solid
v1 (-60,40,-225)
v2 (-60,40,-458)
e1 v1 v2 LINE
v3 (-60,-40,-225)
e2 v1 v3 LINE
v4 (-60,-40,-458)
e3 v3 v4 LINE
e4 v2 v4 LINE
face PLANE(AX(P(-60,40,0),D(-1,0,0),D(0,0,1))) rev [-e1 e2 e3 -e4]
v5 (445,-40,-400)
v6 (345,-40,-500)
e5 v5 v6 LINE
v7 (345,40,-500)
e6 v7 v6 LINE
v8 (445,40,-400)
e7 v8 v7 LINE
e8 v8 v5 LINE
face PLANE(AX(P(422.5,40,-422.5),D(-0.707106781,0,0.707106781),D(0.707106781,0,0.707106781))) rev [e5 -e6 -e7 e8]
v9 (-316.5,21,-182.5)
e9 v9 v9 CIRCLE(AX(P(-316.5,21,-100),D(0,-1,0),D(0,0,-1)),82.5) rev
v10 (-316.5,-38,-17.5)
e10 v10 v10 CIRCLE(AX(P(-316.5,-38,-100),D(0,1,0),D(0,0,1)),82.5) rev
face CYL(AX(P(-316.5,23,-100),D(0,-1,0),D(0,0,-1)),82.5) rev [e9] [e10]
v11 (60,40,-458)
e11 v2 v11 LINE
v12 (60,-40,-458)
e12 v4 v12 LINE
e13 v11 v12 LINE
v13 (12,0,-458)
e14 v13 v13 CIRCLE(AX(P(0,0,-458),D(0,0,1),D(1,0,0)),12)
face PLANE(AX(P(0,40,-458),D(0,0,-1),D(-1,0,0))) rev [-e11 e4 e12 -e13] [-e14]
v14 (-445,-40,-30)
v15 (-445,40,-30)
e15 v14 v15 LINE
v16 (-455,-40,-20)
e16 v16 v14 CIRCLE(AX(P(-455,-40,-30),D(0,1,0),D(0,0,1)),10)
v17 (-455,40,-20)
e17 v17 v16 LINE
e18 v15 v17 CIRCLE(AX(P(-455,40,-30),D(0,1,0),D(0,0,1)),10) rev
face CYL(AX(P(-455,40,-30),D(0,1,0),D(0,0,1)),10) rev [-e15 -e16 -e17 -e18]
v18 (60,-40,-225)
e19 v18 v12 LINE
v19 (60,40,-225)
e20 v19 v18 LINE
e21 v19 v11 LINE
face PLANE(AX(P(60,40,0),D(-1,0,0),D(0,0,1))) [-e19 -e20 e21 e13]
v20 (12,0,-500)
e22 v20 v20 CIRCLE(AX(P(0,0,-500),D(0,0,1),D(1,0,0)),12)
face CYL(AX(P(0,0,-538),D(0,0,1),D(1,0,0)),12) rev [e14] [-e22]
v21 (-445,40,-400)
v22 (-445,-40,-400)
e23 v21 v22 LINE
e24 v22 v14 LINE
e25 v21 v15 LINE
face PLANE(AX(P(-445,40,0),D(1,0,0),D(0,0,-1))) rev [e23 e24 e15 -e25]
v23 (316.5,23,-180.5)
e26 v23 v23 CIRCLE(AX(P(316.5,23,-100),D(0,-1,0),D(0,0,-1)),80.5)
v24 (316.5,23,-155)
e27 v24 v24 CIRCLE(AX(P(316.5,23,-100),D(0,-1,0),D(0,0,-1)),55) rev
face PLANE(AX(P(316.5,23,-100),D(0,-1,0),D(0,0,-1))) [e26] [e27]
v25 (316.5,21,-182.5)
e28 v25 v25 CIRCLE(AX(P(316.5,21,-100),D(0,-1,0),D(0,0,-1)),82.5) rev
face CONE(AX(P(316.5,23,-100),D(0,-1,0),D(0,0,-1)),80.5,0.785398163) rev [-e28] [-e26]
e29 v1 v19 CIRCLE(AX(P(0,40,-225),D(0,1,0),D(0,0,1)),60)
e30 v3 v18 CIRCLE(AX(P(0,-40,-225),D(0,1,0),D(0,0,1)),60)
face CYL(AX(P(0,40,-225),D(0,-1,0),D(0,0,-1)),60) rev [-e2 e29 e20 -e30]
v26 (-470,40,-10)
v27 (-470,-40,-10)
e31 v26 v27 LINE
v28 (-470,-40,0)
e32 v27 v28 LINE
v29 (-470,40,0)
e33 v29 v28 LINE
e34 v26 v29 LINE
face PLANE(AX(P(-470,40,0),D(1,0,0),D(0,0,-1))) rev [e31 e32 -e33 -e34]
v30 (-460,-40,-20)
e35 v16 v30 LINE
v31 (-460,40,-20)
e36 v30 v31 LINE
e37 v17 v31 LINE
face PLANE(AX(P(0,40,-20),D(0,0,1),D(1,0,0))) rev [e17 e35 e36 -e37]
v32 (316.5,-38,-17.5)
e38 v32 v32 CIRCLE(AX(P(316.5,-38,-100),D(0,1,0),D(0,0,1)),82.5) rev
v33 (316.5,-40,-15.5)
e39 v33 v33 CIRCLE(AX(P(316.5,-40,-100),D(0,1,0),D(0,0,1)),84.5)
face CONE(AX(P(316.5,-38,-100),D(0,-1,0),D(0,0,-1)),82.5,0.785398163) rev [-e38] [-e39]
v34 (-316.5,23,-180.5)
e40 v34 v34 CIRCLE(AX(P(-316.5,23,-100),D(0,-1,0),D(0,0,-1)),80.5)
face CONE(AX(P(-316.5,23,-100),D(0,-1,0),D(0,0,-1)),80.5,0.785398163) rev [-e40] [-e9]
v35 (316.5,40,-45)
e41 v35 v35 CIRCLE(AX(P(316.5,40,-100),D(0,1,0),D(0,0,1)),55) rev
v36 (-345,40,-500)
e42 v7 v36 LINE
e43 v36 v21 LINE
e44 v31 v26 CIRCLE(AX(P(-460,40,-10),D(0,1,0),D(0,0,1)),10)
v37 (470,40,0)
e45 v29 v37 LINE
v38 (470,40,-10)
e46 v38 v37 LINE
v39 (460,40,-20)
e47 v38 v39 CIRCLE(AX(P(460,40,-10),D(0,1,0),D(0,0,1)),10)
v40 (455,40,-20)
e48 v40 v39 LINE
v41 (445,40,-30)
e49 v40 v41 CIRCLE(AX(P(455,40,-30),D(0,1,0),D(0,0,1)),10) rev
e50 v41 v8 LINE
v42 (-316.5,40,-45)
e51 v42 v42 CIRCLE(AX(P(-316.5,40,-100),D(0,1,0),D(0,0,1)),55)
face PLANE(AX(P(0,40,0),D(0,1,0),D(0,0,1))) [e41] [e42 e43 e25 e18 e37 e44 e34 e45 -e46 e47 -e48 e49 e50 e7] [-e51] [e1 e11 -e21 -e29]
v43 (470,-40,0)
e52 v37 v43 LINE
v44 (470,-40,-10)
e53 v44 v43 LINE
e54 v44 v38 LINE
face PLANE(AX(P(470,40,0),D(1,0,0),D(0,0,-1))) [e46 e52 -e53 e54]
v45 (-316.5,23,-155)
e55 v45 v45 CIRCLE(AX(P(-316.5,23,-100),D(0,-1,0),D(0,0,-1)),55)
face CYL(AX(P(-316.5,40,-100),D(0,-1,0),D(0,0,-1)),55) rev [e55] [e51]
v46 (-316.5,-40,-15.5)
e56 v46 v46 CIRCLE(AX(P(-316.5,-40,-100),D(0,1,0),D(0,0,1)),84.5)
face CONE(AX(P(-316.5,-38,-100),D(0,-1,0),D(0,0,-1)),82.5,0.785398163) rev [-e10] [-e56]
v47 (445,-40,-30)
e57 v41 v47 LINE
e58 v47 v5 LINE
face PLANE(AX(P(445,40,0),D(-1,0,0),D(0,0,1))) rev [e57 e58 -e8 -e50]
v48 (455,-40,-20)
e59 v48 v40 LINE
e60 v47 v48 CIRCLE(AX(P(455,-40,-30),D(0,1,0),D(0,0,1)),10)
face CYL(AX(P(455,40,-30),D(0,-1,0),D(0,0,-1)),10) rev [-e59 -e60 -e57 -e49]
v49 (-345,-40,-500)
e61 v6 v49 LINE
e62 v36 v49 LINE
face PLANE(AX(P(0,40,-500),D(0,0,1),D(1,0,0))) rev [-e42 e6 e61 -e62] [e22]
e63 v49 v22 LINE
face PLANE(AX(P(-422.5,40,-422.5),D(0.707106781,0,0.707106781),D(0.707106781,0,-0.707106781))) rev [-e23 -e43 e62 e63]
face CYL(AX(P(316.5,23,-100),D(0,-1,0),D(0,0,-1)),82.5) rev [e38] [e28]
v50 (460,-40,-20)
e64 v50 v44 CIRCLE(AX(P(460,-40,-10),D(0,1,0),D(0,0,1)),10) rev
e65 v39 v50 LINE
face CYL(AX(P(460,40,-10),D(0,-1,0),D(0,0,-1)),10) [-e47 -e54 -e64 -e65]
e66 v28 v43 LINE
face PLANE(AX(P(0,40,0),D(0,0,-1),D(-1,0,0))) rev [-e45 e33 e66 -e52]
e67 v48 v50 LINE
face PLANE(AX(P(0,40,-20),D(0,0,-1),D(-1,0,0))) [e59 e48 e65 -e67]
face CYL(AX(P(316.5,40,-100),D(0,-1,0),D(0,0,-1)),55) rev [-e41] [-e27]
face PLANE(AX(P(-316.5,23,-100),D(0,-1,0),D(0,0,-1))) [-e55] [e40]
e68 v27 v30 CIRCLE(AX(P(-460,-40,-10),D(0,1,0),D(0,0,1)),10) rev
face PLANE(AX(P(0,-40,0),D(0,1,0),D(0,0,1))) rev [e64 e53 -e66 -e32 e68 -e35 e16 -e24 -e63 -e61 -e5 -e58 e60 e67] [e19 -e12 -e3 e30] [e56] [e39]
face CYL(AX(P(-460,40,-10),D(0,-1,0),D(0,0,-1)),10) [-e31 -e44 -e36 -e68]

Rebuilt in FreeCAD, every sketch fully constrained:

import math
import FreeCAD as App
import Part
import Sketcher

V = App.Vector
Q = App.Units.Quantity


def edges_at(feature, points):
    """Names of the edges that pass closest to the given points."""
    edges = feature.Shape.Edges
    near = lambda p: min(range(len(edges)), key=lambda i: edges[i].distToShape(Part.Vertex(*p))[0])
    return sorted({f"Edge{near(p) + 1}" for p in points})


def add_polygon(sketch, points):
    """Adds a closed chain of lines whose ends are joined by coincident constraints."""
    first, n = sketch.GeometryCount, len(points)
    for a, b in zip(points, points[1:] + points[:1]):
        sketch.addGeometry(Part.LineSegment(App.Vector(*a, 0), App.Vector(*b, 0)), False)
    for i in range(n):
        sketch.addConstraint(Sketcher.Constraint("Coincident", first + i, 2, first + (i + 1) % n, 1))

doc = App.newDocument("Part")
body = doc.addObject("PartDesign::Body", "Body")

# Sketch on XZ plane
sketch1 = body.newObject("Sketcher::SketchObject", "Sketch")
sketch1.AttachmentSupport = (doc.getObject("XZ_Plane"), [""])
sketch1.MapMode = "FlatFace"
add_polygon(sketch1, [(-470, 0), (470, 0), (470, -20), (445, -20), (445, -400), (345, -500), (-345, -500), (-445, -400), (-445, -20), (-470, -20)])  # lines 0-9
sketch1.addGeometry(Part.Circle(V(-316, -100, 0), V(0, 0, 1), 55), False)  # 10
sketch1.addGeometry(Part.Circle(V(316, -100, 0), V(0, 0, 1), 55), False)  # 11
sketch1.addGeometry(Part.ArcOfCircle(Part.Circle(V(0, -225, 0), V(0, 0, 1), 60), math.radians(0), math.radians(180)), False)  # 12
sketch1.addGeometry(Part.LineSegment(V(-60, -225, 0), V(-60, -458, 0)), False)  # 13
sketch1.addGeometry(Part.LineSegment(V(-60, -458, 0), V(60, -458, 0)), False)  # 14
sketch1.addGeometry(Part.LineSegment(V(60, -458, 0), V(60, -225, 0)), False)  # 15
sketch1.addConstraint(Sketcher.Constraint("Tangent", 12, 2, 13, 1))
sketch1.addConstraint(Sketcher.Constraint("Coincident", 13, 2, 14, 1))
sketch1.addConstraint(Sketcher.Constraint("Coincident", 14, 2, 15, 1))
sketch1.addConstraint(Sketcher.Constraint("Tangent", 15, 2, 12, 1))
sketch1.addConstraint(Sketcher.Constraint("Horizontal", 0))
sketch1.addConstraint(Sketcher.Constraint("Vertical", 1))
sketch1.addConstraint(Sketcher.Constraint("Horizontal", 2))
sketch1.addConstraint(Sketcher.Constraint("Vertical", 3))
sketch1.addConstraint(Sketcher.Constraint("Horizontal", 5))
sketch1.addConstraint(Sketcher.Constraint("Vertical", 7))
sketch1.addConstraint(Sketcher.Constraint("Horizontal", 8))
sketch1.addConstraint(Sketcher.Constraint("Vertical", 9))
sketch1.addConstraint(Sketcher.Constraint("Vertical", 13))
sketch1.addConstraint(Sketcher.Constraint("Horizontal", 14))
sketch1.addConstraint(Sketcher.Constraint("Vertical", 15))
sketch1.addConstraint(Sketcher.Constraint("Equal", 10, 11))
sketch1.addConstraint(Sketcher.Constraint("Symmetric", 0, 2, 9, 2, -1, 1))
sketch1.addConstraint(Sketcher.Constraint("Symmetric", 10, 3, 11, 3, -2))
sketch1.addConstraint(Sketcher.Constraint("Symmetric", 3, 2, 6, 2, -2))
sketch1.addConstraint(Sketcher.Constraint("PointOnObject", 12, 3, -2))
sketch1.addConstraint(Sketcher.Constraint("Perpendicular", 4, 6))
sketch1.addConstraint(Sketcher.Constraint("Horizontal", 2, 2, 7, 2))
sketch1.addConstraint(Sketcher.Constraint("Equal", 4, 6))
sketch1.addConstraint(Sketcher.Constraint("Diameter", 10, Q("110 mm")))
sketch1.addConstraint(Sketcher.Constraint("Radius", 12, Q("60 mm")))
sketch1.addConstraint(Sketcher.Constraint("DistanceX", 0, 1, 0, 2, Q("940 mm")))
sketch1.addConstraint(Sketcher.Constraint("DistanceX", 2, 2, 2, 1, Q("25 mm")))
sketch1.addConstraint(Sketcher.Constraint("DistanceX", 5, 2, 5, 1, Q("690 mm")))
sketch1.addConstraint(Sketcher.Constraint("DistanceY", 1, 2, 1, 1, Q("20 mm")))
sketch1.addConstraint(Sketcher.Constraint("DistanceY", 3, 2, 3, 1, Q("380 mm")))
sketch1.addConstraint(Sketcher.Constraint("DistanceY", 13, 2, 13, 1, Q("233 mm")))
sketch1.addConstraint(Sketcher.Constraint("DistanceY", 10, 3, -1, 1, Q("100 mm")))
sketch1.addConstraint(Sketcher.Constraint("DistanceY", 12, 3, -1, 1, Q("225 mm")))
sketch1.addConstraint(Sketcher.Constraint("DistanceX", 10, 3, 11, 3, Q("633 mm")))
pad1 = body.newObject("PartDesign::Pad", "Pad")
pad1.Profile = sketch1
pad1.Length = 80
pad1.Midplane = True
doc.recompute()

fillet = body.newObject("PartDesign::Fillet", "Fillet")
fillet.Base = (pad1, edges_at(pad1, [
    (445, 0, -20),
    (470, 0, -20),
    (-470, 0, -20),
    (-445, 0, -20),
]))
fillet.Radius = 10

# Sketch on XY plane
sketch2 = body.newObject("Sketcher::SketchObject", "Sketch001")
sketch2.AttachmentSupport = (doc.getObject("XY_Plane"), [""])
sketch2.MapMode = "FlatFace"
sketch2.AttachmentOffset = App.Placement(V(0, 0, -458), App.Rotation())
sketch2.addGeometry(Part.Circle(V(0, 0, 0), V(0, 0, 1), 12), False)
sketch2.addConstraint(Sketcher.Constraint("Coincident", 0, 3, -1, 1))
sketch2.addConstraint(Sketcher.Constraint("Diameter", 0, Q("24 mm")))
pocket1 = body.newObject("PartDesign::Pocket", "Pocket")
pocket1.Profile = sketch2
pocket1.Length = 80

# Sketch on XZ plane
sketch3 = body.newObject("Sketcher::SketchObject", "Sketch002")
sketch3.AttachmentSupport = (doc.getObject("XZ_Plane"), [""])
sketch3.MapMode = "FlatFace"
sketch3.AttachmentOffset = App.Placement(V(0, 0, 40), App.Rotation())
sketch3.addGeometry(Part.Circle(V(-316, -100, 0), V(0, 0, 1), 82), False)
sketch3.addGeometry(Part.Circle(V(316, -100, 0), V(0, 0, 1), 82), False)
sketch3.addConstraint(Sketcher.Constraint("Equal", 0, 1))
sketch3.addConstraint(Sketcher.Constraint("Symmetric", 0, 3, 1, 3, -2))
sketch3.addConstraint(Sketcher.Constraint("Diameter", 0, Q("165 mm")))
sketch3.addConstraint(Sketcher.Constraint("DistanceY", 0, 3, -1, 1, Q("100 mm")))
sketch3.addConstraint(Sketcher.Constraint("DistanceX", 0, 3, 1, 3, Q("633 mm")))
pocket2 = body.newObject("PartDesign::Pocket", "Pocket001")
pocket2.Profile = sketch3
pocket2.Length = 63
doc.recompute()

chamfer = body.newObject("PartDesign::Chamfer", "Chamfer")
chamfer.Base = (pocket2, edges_at(pocket2, [
    (-316.5, 23, -17.5),
    (-316.5, -40, -17.5),
    (316.5, -40, -17.5),
    (316.5, 23, -17.5),
]))
chamfer.Size = 2

doc.recompute()
